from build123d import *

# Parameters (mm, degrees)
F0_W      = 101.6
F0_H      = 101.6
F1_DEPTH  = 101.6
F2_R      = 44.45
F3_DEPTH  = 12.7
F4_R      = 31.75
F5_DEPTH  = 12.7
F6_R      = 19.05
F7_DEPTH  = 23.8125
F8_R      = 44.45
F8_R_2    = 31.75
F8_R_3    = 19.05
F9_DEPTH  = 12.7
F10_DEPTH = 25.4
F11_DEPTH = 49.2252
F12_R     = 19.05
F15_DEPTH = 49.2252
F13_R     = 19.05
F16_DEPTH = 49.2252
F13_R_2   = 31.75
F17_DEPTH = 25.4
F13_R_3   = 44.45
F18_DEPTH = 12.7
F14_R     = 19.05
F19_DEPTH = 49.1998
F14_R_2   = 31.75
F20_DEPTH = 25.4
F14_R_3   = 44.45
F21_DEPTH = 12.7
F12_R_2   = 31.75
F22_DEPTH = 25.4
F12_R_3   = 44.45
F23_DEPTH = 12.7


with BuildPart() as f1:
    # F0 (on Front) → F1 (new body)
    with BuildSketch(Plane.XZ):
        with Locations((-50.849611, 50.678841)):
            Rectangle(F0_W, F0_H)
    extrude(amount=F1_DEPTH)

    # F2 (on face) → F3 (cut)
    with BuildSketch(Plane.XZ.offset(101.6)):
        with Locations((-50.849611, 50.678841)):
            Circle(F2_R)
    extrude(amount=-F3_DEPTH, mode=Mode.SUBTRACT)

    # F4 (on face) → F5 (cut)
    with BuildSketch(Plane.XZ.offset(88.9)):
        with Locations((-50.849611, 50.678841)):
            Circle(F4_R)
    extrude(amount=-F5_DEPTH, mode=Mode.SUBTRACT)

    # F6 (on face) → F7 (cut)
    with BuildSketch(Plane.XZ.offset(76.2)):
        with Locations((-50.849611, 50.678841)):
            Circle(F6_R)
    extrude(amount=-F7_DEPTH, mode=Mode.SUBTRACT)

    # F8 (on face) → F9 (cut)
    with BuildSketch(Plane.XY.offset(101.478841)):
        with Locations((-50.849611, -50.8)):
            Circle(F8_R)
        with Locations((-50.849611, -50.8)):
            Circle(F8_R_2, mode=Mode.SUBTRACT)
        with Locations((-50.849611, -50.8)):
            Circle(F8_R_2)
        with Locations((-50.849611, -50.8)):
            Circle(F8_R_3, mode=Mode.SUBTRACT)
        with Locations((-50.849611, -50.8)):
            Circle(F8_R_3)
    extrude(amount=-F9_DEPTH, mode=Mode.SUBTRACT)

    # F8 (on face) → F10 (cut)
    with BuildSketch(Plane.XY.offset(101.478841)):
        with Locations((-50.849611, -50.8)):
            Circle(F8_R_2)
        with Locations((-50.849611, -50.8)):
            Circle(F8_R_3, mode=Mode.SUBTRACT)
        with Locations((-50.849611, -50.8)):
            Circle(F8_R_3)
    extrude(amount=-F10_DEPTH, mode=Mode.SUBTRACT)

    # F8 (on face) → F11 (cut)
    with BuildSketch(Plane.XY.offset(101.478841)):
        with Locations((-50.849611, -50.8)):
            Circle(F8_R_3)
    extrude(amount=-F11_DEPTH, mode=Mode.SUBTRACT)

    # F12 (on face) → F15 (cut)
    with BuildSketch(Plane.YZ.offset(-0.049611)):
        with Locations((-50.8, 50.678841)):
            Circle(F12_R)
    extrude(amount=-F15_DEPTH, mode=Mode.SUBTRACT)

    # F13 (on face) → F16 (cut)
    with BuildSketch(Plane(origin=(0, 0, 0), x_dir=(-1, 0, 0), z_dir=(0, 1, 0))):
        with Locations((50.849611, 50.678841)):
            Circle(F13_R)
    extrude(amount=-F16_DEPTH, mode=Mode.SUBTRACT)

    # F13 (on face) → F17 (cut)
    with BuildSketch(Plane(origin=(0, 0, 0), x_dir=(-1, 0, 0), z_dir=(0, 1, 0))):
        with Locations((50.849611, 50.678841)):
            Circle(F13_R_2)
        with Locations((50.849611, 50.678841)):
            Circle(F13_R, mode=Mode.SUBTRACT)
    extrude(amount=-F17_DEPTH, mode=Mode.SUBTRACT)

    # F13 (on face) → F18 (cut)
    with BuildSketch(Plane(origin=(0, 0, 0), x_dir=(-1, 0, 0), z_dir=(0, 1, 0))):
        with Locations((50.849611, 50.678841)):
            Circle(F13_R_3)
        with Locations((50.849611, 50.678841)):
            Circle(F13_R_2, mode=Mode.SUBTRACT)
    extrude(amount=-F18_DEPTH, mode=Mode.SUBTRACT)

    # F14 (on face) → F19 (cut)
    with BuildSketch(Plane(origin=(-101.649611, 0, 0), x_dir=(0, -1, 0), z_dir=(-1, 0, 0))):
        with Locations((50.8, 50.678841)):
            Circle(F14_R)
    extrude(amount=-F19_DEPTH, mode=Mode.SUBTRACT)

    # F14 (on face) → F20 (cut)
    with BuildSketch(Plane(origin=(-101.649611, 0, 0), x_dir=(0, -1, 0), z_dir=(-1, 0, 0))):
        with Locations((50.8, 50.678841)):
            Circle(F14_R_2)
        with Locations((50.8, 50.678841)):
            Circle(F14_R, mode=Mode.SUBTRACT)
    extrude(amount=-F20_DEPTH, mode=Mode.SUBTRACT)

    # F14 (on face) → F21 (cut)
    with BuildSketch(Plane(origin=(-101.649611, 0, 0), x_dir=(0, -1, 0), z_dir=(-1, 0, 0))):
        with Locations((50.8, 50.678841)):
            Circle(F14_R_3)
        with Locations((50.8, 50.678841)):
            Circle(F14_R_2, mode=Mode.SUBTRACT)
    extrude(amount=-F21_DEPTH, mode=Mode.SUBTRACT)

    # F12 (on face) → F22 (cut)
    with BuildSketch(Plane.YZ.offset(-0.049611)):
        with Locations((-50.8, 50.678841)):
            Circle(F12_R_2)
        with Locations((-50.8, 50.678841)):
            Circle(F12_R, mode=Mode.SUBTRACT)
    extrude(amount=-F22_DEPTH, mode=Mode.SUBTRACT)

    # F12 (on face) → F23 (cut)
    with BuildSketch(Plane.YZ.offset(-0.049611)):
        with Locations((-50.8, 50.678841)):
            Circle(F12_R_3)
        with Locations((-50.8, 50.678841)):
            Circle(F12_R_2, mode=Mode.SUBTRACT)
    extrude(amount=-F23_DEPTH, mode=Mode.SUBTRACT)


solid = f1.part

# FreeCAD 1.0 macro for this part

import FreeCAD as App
import Part
import Sketcher
Q = App.Units.Quantity

doc = App.newDocument("Part")
body = doc.addObject("PartDesign::Body", "Body")

sketch1 = body.newObject("Sketcher::SketchObject", "Sketch")
sketch1.AttachmentSupport = (doc.getObject("XZ_Plane"), [""])
sketch1.MapMode = "FlatFace"
sketch1.addGeometry([
    Part.LineSegment(App.Vector(-101.649611, 101.478841, 0), App.Vector(-101.649611, -0.121159, 0)),
    Part.LineSegment(App.Vector(-101.649611, -0.121159, 0), App.Vector(-0.049611, -0.121159, 0)),
    Part.LineSegment(App.Vector(-0.049611, -0.121159, 0), App.Vector(-0.049611, 101.478841, 0)),
    Part.LineSegment(App.Vector(-0.049611, 101.478841, 0), App.Vector(-101.649611, 101.478841, 0)),
], False)
sketch1.addConstraint([
    Sketcher.Constraint("Coincident", 0, 2, 1, 1),
    Sketcher.Constraint("Coincident", 1, 2, 2, 1),
    Sketcher.Constraint("Coincident", 2, 2, 3, 1),
    Sketcher.Constraint("Coincident", 3, 2, 0, 1),
    Sketcher.Constraint("Vertical", 0),
    Sketcher.Constraint("Horizontal", 1),
    Sketcher.Constraint("Vertical", 2),
    Sketcher.Constraint("Horizontal", 3),
    Sketcher.Constraint("Equal", 3, 0),
    Sketcher.Constraint("DistanceX", 1, 1, 1, 2, Q("4 in")),
    Sketcher.Constraint("DistanceX", 0, 2, -1, 1, 101.649611),
    Sketcher.Constraint("DistanceY", 0, 2, -1, 1, 0.121159),
])
pad1 = body.newObject("PartDesign::Pad", "Pad")
pad1.Profile = sketch1
pad1.Length = Q("4 in")

sketch2 = body.newObject("Sketcher::SketchObject", "Sketch001")
sketch2.AttachmentSupport = (doc.getObject("XZ_Plane"), [""])
sketch2.MapMode = "FlatFace"
sketch2.AttachmentOffset = App.Placement(App.Vector(0, 0, 4 * 25.4), App.Rotation())
sketch2.addGeometry(Part.Circle(App.Vector(-50.849611, 50.678841, 0), App.Vector(0, 0, 1), 44.45), False)
sketch2.addConstraint([
    Sketcher.Constraint("Diameter", 0, Q("3.5 in")),
    Sketcher.Constraint("DistanceX", 0, 3, -1, 1, 50.849611),
    Sketcher.Constraint("DistanceY", -1, 1, 0, 3, 50.678841),
])
pocket1 = body.newObject("PartDesign::Pocket", "Pocket")
pocket1.Profile = sketch2
pocket1.Length = Q("0.5 in")

sketch3 = body.newObject("Sketcher::SketchObject", "Sketch002")
sketch3.AttachmentSupport = (doc.getObject("XZ_Plane"), [""])
sketch3.MapMode = "FlatFace"
sketch3.AttachmentOffset = App.Placement(App.Vector(0, 0, 3.5 * 25.4), App.Rotation())
sketch3.addGeometry(Part.Circle(App.Vector(-50.849611, 50.678841, 0), App.Vector(0, 0, 1), 31.75), False)
sketch3.addConstraint([
    Sketcher.Constraint("Diameter", 0, Q("2.5 in")),
    Sketcher.Constraint("DistanceX", 0, 3, -1, 1, 50.849611),
    Sketcher.Constraint("DistanceY", -1, 1, 0, 3, 50.678841),
])
pocket2 = body.newObject("PartDesign::Pocket", "Pocket001")
pocket2.Profile = sketch3
pocket2.Length = Q("0.5 in")

sketch4 = body.newObject("Sketcher::SketchObject", "Sketch003")
sketch4.AttachmentSupport = (doc.getObject("XZ_Plane"), [""])
sketch4.MapMode = "FlatFace"
sketch4.AttachmentOffset = App.Placement(App.Vector(0, 0, 3 * 25.4), App.Rotation())
sketch4.addGeometry(Part.Circle(App.Vector(-50.849611, 50.678841, 0), App.Vector(0, 0, 1), 19.05), False)
sketch4.addConstraint([
    Sketcher.Constraint("Diameter", 0, Q("1.5 in")),
    Sketcher.Constraint("DistanceX", 0, 3, -1, 1, 50.849611),
    Sketcher.Constraint("DistanceY", -1, 1, 0, 3, 50.678841),
])
pocket3 = body.newObject("PartDesign::Pocket", "Pocket002")
pocket3.Profile = sketch4
pocket3.Length = Q("0.9375 in")

sketch5 = body.newObject("Sketcher::SketchObject", "Sketch004")
sketch5.AttachmentSupport = (doc.getObject("XY_Plane"), [""])
sketch5.MapMode = "FlatFace"
sketch5.AttachmentOffset = App.Placement(App.Vector(0, 0, 101.478841), App.Rotation())
sketch5.addGeometry(Part.Circle(App.Vector(-50.849611, -50.8, 0), App.Vector(0, 0, 1), 44.45), False)
sketch5.addConstraint([
    Sketcher.Constraint("Diameter", 0, Q("3.5 in")),
    Sketcher.Constraint("DistanceY", 0, 3, -1, 1, Q("2 in")),
    Sketcher.Constraint("DistanceX", 0, 3, -1, 1, 50.849611),
])
pocket4 = body.newObject("PartDesign::Pocket", "Pocket003")
pocket4.Profile = sketch5
pocket4.Length = Q("0.5 in")

sketch6 = body.newObject("Sketcher::SketchObject", "Sketch005")
sketch6.AttachmentSupport = (doc.getObject("XY_Plane"), [""])
sketch6.MapMode = "FlatFace"
sketch6.AttachmentOffset = App.Placement(App.Vector(0, 0, 101.478841), App.Rotation())
sketch6.addGeometry(Part.Circle(App.Vector(-50.849611, -50.8, 0), App.Vector(0, 0, 1), 31.75), False)
sketch6.addConstraint([
    Sketcher.Constraint("Diameter", 0, Q("2.5 in")),
    Sketcher.Constraint("DistanceY", 0, 3, -1, 1, Q("2 in")),
    Sketcher.Constraint("DistanceX", 0, 3, -1, 1, 50.849611),
])
pocket5 = body.newObject("PartDesign::Pocket", "Pocket004")
pocket5.Profile = sketch6
pocket5.Length = Q("1 in")

sketch7 = body.newObject("Sketcher::SketchObject", "Sketch006")
sketch7.AttachmentSupport = (doc.getObject("XY_Plane"), [""])
sketch7.MapMode = "FlatFace"
sketch7.AttachmentOffset = App.Placement(App.Vector(0, 0, 101.478841), App.Rotation())
sketch7.addGeometry(Part.Circle(App.Vector(-50.849611, -50.8, 0), App.Vector(0, 0, 1), 19.05), False)
sketch7.addConstraint([
    Sketcher.Constraint("Diameter", 0, Q("1.5 in")),
    Sketcher.Constraint("DistanceY", 0, 3, -1, 1, Q("2 in")),
    Sketcher.Constraint("DistanceX", 0, 3, -1, 1, 50.849611),
])
pocket6 = body.newObject("PartDesign::Pocket", "Pocket005")
pocket6.Profile = sketch7
pocket6.Length = Q("1.938 in")

sketch8 = body.newObject("Sketcher::SketchObject", "Sketch007")
sketch8.AttachmentSupport = (doc.getObject("YZ_Plane"), [""])
sketch8.MapMode = "FlatFace"
sketch8.AttachmentOffset = App.Placement(App.Vector(0, 0, -0.049611), App.Rotation())
sketch8.addGeometry(Part.Circle(App.Vector(-50.8, 50.678841, 0), App.Vector(0, 0, 1), 19.05), False)
sketch8.addConstraint([
    Sketcher.Constraint("Diameter", 0, Q("1.5 in")),
    Sketcher.Constraint("DistanceX", 0, 3, -1, 1, Q("2 in")),
    Sketcher.Constraint("DistanceY", -1, 1, 0, 3, 50.678841),
])
pocket7 = body.newObject("PartDesign::Pocket", "Pocket006")
pocket7.Profile = sketch8
pocket7.Length = Q("1.938 in")

sketch9 = body.newObject("Sketcher::SketchObject", "Sketch008")
sketch9.AttachmentSupport = (doc.getObject("XZ_Plane"), [""])
sketch9.MapMode = "FlatFace"
sketch9.addGeometry(Part.Circle(App.Vector(-50.849611, 50.678841, 0), App.Vector(0, 0, 1), 19.05), False)
sketch9.addConstraint([
    Sketcher.Constraint("Diameter", 0, Q("1.5 in")),
    Sketcher.Constraint("DistanceX", 0, 3, -1, 1, 50.849611),
    Sketcher.Constraint("DistanceY", -1, 1, 0, 3, 50.678841),
])
pocket8 = body.newObject("PartDesign::Pocket", "Pocket007")
pocket8.Profile = sketch9
pocket8.Length = Q("1.938 in")
pocket8.Reversed = True

sketch10 = body.newObject("Sketcher::SketchObject", "Sketch009")
sketch10.AttachmentSupport = (doc.getObject("XZ_Plane"), [""])
sketch10.MapMode = "FlatFace"
sketch10.addGeometry([
    Part.Circle(App.Vector(-50.849611, 50.678841, 0), App.Vector(0, 0, 1), 31.75),
    Part.Circle(App.Vector(-50.849611, 50.678841, 0), App.Vector(0, 0, 1), 19.05),
], False)
sketch10.addConstraint([
    Sketcher.Constraint("Coincident", 1, 3, 0, 3),
    Sketcher.Constraint("Diameter", 0, Q("2.5 in")),
    Sketcher.Constraint("Diameter", 1, Q("1.5 in")),
    Sketcher.Constraint("DistanceX", 0, 3, -1, 1, 50.849611),
    Sketcher.Constraint("DistanceY", -1, 1, 0, 3, 50.678841),
])
pocket9 = body.newObject("PartDesign::Pocket", "Pocket008")
pocket9.Profile = sketch10
pocket9.Length = Q("1 in")
pocket9.Reversed = True

sketch11 = body.newObject("Sketcher::SketchObject", "Sketch010")
sketch11.AttachmentSupport = (doc.getObject("XZ_Plane"), [""])
sketch11.MapMode = "FlatFace"
sketch11.addGeometry([
    Part.Circle(App.Vector(-50.849611, 50.678841, 0), App.Vector(0, 0, 1), 44.45),
    Part.Circle(App.Vector(-50.849611, 50.678841, 0), App.Vector(0, 0, 1), 31.75),
], False)
sketch11.addConstraint([
    Sketcher.Constraint("Coincident", 1, 3, 0, 3),
    Sketcher.Constraint("Diameter", 0, Q("3.5 in")),
    Sketcher.Constraint("Diameter", 1, Q("2.5 in")),
    Sketcher.Constraint("DistanceX", 0, 3, -1, 1, 50.849611),
    Sketcher.Constraint("DistanceY", -1, 1, 0, 3, 50.678841),
])
pocket10 = body.newObject("PartDesign::Pocket", "Pocket009")
pocket10.Profile = sketch11
pocket10.Length = Q("0.5 in")
pocket10.Reversed = True

sketch12 = body.newObject("Sketcher::SketchObject", "Sketch011")
sketch12.AttachmentSupport = (doc.getObject("YZ_Plane"), [""])
sketch12.MapMode = "FlatFace"
sketch12.AttachmentOffset = App.Placement(App.Vector(0, 0, -101.649611), App.Rotation())
sketch12.addGeometry(Part.Circle(App.Vector(-50.8, 50.678841, 0), App.Vector(0, 0, 1), 19.05), False)
sketch12.addConstraint([
    Sketcher.Constraint("Diameter", 0, Q("1.5 in")),
    Sketcher.Constraint("DistanceX", 0, 3, -1, 1, Q("2 in")),
    Sketcher.Constraint("DistanceY", -1, 1, 0, 3, 50.678841),
])
pocket11 = body.newObject("PartDesign::Pocket", "Pocket010")
pocket11.Profile = sketch12
pocket11.Length = Q("1.937 in")
pocket11.Reversed = True

sketch13 = body.newObject("Sketcher::SketchObject", "Sketch012")
sketch13.AttachmentSupport = (doc.getObject("YZ_Plane"), [""])
sketch13.MapMode = "FlatFace"
sketch13.AttachmentOffset = App.Placement(App.Vector(0, 0, -101.649611), App.Rotation())
sketch13.addGeometry([
    Part.Circle(App.Vector(-50.8, 50.678841, 0), App.Vector(0, 0, 1), 31.75),
    Part.Circle(App.Vector(-50.8, 50.678841, 0), App.Vector(0, 0, 1), 19.05),
], False)
sketch13.addConstraint([
    Sketcher.Constraint("Coincident", 1, 3, 0, 3),
    Sketcher.Constraint("Diameter", 0, Q("2.5 in")),
    Sketcher.Constraint("Diameter", 1, Q("1.5 in")),
    Sketcher.Constraint("DistanceX", 0, 3, -1, 1, Q("2 in")),
    Sketcher.Constraint("DistanceY", -1, 1, 0, 3, 50.678841),
])
pocket12 = body.newObject("PartDesign::Pocket", "Pocket011")
pocket12.Profile = sketch13
pocket12.Length = Q("1 in")
pocket12.Reversed = True

sketch14 = body.newObject("Sketcher::SketchObject", "Sketch013")
sketch14.AttachmentSupport = (doc.getObject("YZ_Plane"), [""])
sketch14.MapMode = "FlatFace"
sketch14.AttachmentOffset = App.Placement(App.Vector(0, 0, -101.649611), App.Rotation())
sketch14.addGeometry([
    Part.Circle(App.Vector(-50.8, 50.678841, 0), App.Vector(0, 0, 1), 44.45),
    Part.Circle(App.Vector(-50.8, 50.678841, 0), App.Vector(0, 0, 1), 31.75),
], False)
sketch14.addConstraint([
    Sketcher.Constraint("Coincident", 1, 3, 0, 3),
    Sketcher.Constraint("Diameter", 0, Q("3.5 in")),
    Sketcher.Constraint("Diameter", 1, Q("2.5 in")),
    Sketcher.Constraint("DistanceX", 0, 3, -1, 1, Q("2 in")),
    Sketcher.Constraint("DistanceY", -1, 1, 0, 3, 50.678841),
])
pocket13 = body.newObject("PartDesign::Pocket", "Pocket012")
pocket13.Profile = sketch14
pocket13.Length = Q("0.5 in")
pocket13.Reversed = True

sketch15 = body.newObject("Sketcher::SketchObject", "Sketch014")
sketch15.AttachmentSupport = (doc.getObject("YZ_Plane"), [""])
sketch15.MapMode = "FlatFace"
sketch15.AttachmentOffset = App.Placement(App.Vector(0, 0, -0.049611), App.Rotation())
sketch15.addGeometry([
    Part.Circle(App.Vector(-50.8, 50.678841, 0), App.Vector(0, 0, 1), 31.75),
    Part.Circle(App.Vector(-50.8, 50.678841, 0), App.Vector(0, 0, 1), 19.05),
], False)
sketch15.addConstraint([
    Sketcher.Constraint("Coincident", 1, 3, 0, 3),
    Sketcher.Constraint("Diameter", 0, Q("2.5 in")),
    Sketcher.Constraint("Diameter", 1, Q("1.5 in")),
    Sketcher.Constraint("DistanceX", 0, 3, -1, 1, Q("2 in")),
    Sketcher.Constraint("DistanceY", -1, 1, 0, 3, 50.678841),
])
pocket14 = body.newObject("PartDesign::Pocket", "Pocket013")
pocket14.Profile = sketch15
pocket14.Length = Q("1 in")

sketch16 = body.newObject("Sketcher::SketchObject", "Sketch015")
sketch16.AttachmentSupport = (doc.getObject("YZ_Plane"), [""])
sketch16.MapMode = "FlatFace"
sketch16.AttachmentOffset = App.Placement(App.Vector(0, 0, -0.049611), App.Rotation())
sketch16.addGeometry([
    Part.Circle(App.Vector(-50.8, 50.678841, 0), App.Vector(0, 0, 1), 44.45),
    Part.Circle(App.Vector(-50.8, 50.678841, 0), App.Vector(0, 0, 1), 31.75),
], False)
sketch16.addConstraint([
    Sketcher.Constraint("Coincident", 1, 3, 0, 3),
    Sketcher.Constraint("Diameter", 0, Q("3.5 in")),
    Sketcher.Constraint("Diameter", 1, Q("2.5 in")),
    Sketcher.Constraint("DistanceX", 0, 3, -1, 1, Q("2 in")),
    Sketcher.Constraint("DistanceY", -1, 1, 0, 3, 50.678841),
])
pocket15 = body.newObject("PartDesign::Pocket", "Pocket014")
pocket15.Profile = sketch16
pocket15.Length = Q("0.5 in")

doc.recompute()
